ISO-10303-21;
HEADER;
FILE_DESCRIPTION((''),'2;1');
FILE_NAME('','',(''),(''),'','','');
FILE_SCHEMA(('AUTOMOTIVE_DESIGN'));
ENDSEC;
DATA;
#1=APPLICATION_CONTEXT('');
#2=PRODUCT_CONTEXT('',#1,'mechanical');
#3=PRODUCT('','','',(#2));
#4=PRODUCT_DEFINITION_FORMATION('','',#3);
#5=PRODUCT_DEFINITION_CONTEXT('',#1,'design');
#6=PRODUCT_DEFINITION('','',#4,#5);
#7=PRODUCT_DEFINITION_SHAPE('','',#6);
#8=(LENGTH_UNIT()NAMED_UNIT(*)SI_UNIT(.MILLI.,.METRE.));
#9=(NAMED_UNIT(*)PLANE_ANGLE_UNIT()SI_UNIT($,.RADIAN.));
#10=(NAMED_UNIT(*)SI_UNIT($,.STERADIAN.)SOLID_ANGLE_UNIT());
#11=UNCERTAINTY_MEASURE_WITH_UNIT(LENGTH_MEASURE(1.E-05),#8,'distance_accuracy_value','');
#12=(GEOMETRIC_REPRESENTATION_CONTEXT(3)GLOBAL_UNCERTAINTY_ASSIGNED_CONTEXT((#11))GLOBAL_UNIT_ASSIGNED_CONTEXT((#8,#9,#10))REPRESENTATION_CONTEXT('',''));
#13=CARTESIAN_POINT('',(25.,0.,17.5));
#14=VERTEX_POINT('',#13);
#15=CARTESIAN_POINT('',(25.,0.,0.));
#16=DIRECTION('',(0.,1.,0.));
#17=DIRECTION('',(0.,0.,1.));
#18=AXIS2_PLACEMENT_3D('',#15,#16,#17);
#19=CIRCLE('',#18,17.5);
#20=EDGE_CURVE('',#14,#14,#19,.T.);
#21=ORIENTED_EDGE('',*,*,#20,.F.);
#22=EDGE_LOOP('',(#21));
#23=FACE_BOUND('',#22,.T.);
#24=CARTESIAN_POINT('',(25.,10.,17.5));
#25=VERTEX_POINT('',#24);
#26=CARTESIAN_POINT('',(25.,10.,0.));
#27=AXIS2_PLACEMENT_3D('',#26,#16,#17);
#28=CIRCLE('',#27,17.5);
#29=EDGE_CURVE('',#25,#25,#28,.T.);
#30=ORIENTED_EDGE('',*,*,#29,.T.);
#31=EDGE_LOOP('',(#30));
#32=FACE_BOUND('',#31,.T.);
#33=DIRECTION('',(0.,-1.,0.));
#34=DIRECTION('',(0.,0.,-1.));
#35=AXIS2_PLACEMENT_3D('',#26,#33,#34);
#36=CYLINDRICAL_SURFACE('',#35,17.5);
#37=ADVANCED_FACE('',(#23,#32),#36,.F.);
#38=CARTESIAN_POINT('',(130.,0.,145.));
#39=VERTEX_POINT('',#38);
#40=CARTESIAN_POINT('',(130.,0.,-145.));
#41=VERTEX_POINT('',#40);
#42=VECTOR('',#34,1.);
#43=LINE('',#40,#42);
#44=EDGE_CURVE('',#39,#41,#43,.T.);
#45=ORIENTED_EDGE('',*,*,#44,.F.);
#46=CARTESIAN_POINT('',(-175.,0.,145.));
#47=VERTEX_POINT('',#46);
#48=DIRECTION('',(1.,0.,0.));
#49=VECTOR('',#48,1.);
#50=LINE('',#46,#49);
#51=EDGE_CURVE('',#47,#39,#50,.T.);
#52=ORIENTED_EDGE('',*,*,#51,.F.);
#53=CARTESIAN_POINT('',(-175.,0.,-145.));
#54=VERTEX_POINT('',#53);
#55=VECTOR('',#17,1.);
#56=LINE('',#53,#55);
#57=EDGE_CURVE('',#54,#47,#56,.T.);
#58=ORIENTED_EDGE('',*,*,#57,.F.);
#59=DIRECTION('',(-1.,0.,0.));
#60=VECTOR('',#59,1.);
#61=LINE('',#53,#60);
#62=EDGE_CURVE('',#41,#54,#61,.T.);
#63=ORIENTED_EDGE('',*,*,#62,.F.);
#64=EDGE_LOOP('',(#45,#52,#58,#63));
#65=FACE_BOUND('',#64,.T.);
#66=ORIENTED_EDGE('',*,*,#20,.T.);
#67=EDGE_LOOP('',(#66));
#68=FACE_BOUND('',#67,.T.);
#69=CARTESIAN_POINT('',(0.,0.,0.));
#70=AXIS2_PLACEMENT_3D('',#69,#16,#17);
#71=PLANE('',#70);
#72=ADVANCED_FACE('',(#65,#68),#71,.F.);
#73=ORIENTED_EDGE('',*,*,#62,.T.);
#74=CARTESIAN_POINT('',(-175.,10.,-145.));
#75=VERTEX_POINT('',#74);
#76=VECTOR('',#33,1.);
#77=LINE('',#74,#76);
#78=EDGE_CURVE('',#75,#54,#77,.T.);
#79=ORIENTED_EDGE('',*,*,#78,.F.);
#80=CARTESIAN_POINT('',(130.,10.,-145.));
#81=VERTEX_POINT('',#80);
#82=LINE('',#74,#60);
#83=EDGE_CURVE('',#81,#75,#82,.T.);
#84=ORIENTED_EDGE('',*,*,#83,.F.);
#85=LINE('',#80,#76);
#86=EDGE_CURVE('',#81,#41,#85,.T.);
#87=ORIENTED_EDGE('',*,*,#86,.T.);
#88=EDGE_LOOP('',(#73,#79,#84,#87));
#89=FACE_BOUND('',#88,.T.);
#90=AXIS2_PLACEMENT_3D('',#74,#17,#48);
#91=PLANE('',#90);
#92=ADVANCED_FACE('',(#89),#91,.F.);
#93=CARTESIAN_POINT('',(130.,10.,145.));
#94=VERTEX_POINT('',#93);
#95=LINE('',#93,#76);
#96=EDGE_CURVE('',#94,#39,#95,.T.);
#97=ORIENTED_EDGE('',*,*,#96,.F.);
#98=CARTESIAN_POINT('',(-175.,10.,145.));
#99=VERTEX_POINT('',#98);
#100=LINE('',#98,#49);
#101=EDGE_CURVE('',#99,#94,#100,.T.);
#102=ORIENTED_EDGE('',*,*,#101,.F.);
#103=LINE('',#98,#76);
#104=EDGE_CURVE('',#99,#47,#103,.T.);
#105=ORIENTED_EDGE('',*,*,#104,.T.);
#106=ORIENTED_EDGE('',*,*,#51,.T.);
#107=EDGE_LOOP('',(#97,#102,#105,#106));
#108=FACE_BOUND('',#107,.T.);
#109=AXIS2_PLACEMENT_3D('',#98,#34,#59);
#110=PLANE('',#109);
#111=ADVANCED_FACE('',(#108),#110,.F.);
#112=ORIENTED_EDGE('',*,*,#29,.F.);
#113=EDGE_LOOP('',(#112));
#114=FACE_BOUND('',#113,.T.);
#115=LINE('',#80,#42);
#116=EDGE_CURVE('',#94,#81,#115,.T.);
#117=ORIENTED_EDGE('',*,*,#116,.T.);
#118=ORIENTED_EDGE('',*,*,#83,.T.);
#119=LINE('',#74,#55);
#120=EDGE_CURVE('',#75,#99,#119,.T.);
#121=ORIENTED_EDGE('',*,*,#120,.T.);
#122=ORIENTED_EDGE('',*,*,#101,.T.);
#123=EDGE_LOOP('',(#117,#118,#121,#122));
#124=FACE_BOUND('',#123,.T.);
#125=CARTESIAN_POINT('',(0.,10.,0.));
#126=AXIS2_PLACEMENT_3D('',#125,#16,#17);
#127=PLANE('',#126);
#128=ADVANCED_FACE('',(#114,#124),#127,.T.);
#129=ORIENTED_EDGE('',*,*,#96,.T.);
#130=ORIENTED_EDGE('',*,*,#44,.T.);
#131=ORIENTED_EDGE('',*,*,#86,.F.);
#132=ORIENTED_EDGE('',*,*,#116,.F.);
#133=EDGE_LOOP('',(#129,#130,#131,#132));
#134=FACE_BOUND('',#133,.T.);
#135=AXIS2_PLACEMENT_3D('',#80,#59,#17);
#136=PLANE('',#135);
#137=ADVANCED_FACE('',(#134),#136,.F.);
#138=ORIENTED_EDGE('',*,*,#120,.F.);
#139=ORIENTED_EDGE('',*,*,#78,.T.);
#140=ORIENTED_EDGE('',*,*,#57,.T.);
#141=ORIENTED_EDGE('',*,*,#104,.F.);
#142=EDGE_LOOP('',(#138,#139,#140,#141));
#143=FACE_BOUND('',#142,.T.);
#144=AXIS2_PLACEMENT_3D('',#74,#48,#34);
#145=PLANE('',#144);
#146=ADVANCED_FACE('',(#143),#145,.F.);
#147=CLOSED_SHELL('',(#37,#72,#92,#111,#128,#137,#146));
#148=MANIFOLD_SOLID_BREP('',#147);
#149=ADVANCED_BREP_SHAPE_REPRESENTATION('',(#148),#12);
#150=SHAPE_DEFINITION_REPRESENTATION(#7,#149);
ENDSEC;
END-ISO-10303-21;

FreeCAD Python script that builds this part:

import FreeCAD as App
import Part
import Sketcher

doc = App.newDocument("Part")
params = doc.addObject("Spreadsheet::Sheet", "Params")
for row, (alias, value) in enumerate([
    ("sketch1_diameter", "35 mm"),
    ("sketch1_width", "305 mm"),
    ("sketch1_height", "290 mm"),
    ("pad1_length", "10 mm"),
], start=1):
    params.set(f"A{row}", alias)
    params.set(f"B{row}", "=" + value)
    params.setAlias(f"B{row}", alias)

body = doc.addObject("PartDesign::Body", "Body")

# Sketch on XZ plane
sketch1 = body.newObject("Sketcher::SketchObject", "Sketch")
sketch1.AttachmentSupport = (doc.getObject("XZ_Plane"), [""])
sketch1.MapMode = "FlatFace"
sketch1.addGeometry(Part.LineSegment(App.Vector(-175, -145, 0), App.Vector(-175, 145, 0)), False)
sketch1.addGeometry(Part.LineSegment(App.Vector(-175, 145, 0), App.Vector(130, 145, 0)), False)
sketch1.addGeometry(Part.LineSegment(App.Vector(130, 145, 0), App.Vector(130, -145, 0)), False)
sketch1.addGeometry(Part.LineSegment(App.Vector(130, -145, 0), App.Vector(-175, -145, 0)), False)
sketch1.addGeometry(Part.Circle(App.Vector(25, 0, 0), App.Vector(0, 0, 1), 18), False)
sketch1.addConstraint(Sketcher.Constraint("Coincident", 0, 2, 1, 1))
sketch1.addConstraint(Sketcher.Constraint("Coincident", 1, 2, 2, 1))
sketch1.addConstraint(Sketcher.Constraint("Coincident", 2, 2, 3, 1))
sketch1.addConstraint(Sketcher.Constraint("Coincident", 3, 2, 0, 1))
sketch1.addConstraint(Sketcher.Constraint("Vertical", 0))
sketch1.addConstraint(Sketcher.Constraint("Horizontal", 1))
sketch1.addConstraint(Sketcher.Constraint("Vertical", 2))
sketch1.addConstraint(Sketcher.Constraint("Horizontal", 3))
sketch1.addConstraint(Sketcher.Constraint("PointOnObject", 4, 3, -1))
sketch1.addConstraint(Sketcher.Constraint("Diameter", 4, 35.0))
sketch1.addConstraint(Sketcher.Constraint("DistanceX", 1, 1, 1, 2, 305.0))
sketch1.addConstraint(Sketcher.Constraint("DistanceY", 0, 1, 0, 2, 290.0))
sketch1.addConstraint(Sketcher.Constraint("DistanceX", -1, 1, 4, 3, 25.0))
sketch1.addConstraint(Sketcher.Constraint("DistanceX", 0, 2, -1, 1, 175.0))
sketch1.addConstraint(Sketcher.Constraint("DistanceY", -1, 1, 0, 2, 145.0))
sketch1.setExpression("Constraints[9]", "Params.sketch1_diameter")
sketch1.setExpression("Constraints[10]", "Params.sketch1_width")
sketch1.setExpression("Constraints[11]", "Params.sketch1_height")
pad1 = body.newObject("PartDesign::Pad", "Pad")
pad1.Profile = sketch1
pad1.setExpression("Length", "Params.pad1_length")
pad1.Reversed = True

doc.recompute()
